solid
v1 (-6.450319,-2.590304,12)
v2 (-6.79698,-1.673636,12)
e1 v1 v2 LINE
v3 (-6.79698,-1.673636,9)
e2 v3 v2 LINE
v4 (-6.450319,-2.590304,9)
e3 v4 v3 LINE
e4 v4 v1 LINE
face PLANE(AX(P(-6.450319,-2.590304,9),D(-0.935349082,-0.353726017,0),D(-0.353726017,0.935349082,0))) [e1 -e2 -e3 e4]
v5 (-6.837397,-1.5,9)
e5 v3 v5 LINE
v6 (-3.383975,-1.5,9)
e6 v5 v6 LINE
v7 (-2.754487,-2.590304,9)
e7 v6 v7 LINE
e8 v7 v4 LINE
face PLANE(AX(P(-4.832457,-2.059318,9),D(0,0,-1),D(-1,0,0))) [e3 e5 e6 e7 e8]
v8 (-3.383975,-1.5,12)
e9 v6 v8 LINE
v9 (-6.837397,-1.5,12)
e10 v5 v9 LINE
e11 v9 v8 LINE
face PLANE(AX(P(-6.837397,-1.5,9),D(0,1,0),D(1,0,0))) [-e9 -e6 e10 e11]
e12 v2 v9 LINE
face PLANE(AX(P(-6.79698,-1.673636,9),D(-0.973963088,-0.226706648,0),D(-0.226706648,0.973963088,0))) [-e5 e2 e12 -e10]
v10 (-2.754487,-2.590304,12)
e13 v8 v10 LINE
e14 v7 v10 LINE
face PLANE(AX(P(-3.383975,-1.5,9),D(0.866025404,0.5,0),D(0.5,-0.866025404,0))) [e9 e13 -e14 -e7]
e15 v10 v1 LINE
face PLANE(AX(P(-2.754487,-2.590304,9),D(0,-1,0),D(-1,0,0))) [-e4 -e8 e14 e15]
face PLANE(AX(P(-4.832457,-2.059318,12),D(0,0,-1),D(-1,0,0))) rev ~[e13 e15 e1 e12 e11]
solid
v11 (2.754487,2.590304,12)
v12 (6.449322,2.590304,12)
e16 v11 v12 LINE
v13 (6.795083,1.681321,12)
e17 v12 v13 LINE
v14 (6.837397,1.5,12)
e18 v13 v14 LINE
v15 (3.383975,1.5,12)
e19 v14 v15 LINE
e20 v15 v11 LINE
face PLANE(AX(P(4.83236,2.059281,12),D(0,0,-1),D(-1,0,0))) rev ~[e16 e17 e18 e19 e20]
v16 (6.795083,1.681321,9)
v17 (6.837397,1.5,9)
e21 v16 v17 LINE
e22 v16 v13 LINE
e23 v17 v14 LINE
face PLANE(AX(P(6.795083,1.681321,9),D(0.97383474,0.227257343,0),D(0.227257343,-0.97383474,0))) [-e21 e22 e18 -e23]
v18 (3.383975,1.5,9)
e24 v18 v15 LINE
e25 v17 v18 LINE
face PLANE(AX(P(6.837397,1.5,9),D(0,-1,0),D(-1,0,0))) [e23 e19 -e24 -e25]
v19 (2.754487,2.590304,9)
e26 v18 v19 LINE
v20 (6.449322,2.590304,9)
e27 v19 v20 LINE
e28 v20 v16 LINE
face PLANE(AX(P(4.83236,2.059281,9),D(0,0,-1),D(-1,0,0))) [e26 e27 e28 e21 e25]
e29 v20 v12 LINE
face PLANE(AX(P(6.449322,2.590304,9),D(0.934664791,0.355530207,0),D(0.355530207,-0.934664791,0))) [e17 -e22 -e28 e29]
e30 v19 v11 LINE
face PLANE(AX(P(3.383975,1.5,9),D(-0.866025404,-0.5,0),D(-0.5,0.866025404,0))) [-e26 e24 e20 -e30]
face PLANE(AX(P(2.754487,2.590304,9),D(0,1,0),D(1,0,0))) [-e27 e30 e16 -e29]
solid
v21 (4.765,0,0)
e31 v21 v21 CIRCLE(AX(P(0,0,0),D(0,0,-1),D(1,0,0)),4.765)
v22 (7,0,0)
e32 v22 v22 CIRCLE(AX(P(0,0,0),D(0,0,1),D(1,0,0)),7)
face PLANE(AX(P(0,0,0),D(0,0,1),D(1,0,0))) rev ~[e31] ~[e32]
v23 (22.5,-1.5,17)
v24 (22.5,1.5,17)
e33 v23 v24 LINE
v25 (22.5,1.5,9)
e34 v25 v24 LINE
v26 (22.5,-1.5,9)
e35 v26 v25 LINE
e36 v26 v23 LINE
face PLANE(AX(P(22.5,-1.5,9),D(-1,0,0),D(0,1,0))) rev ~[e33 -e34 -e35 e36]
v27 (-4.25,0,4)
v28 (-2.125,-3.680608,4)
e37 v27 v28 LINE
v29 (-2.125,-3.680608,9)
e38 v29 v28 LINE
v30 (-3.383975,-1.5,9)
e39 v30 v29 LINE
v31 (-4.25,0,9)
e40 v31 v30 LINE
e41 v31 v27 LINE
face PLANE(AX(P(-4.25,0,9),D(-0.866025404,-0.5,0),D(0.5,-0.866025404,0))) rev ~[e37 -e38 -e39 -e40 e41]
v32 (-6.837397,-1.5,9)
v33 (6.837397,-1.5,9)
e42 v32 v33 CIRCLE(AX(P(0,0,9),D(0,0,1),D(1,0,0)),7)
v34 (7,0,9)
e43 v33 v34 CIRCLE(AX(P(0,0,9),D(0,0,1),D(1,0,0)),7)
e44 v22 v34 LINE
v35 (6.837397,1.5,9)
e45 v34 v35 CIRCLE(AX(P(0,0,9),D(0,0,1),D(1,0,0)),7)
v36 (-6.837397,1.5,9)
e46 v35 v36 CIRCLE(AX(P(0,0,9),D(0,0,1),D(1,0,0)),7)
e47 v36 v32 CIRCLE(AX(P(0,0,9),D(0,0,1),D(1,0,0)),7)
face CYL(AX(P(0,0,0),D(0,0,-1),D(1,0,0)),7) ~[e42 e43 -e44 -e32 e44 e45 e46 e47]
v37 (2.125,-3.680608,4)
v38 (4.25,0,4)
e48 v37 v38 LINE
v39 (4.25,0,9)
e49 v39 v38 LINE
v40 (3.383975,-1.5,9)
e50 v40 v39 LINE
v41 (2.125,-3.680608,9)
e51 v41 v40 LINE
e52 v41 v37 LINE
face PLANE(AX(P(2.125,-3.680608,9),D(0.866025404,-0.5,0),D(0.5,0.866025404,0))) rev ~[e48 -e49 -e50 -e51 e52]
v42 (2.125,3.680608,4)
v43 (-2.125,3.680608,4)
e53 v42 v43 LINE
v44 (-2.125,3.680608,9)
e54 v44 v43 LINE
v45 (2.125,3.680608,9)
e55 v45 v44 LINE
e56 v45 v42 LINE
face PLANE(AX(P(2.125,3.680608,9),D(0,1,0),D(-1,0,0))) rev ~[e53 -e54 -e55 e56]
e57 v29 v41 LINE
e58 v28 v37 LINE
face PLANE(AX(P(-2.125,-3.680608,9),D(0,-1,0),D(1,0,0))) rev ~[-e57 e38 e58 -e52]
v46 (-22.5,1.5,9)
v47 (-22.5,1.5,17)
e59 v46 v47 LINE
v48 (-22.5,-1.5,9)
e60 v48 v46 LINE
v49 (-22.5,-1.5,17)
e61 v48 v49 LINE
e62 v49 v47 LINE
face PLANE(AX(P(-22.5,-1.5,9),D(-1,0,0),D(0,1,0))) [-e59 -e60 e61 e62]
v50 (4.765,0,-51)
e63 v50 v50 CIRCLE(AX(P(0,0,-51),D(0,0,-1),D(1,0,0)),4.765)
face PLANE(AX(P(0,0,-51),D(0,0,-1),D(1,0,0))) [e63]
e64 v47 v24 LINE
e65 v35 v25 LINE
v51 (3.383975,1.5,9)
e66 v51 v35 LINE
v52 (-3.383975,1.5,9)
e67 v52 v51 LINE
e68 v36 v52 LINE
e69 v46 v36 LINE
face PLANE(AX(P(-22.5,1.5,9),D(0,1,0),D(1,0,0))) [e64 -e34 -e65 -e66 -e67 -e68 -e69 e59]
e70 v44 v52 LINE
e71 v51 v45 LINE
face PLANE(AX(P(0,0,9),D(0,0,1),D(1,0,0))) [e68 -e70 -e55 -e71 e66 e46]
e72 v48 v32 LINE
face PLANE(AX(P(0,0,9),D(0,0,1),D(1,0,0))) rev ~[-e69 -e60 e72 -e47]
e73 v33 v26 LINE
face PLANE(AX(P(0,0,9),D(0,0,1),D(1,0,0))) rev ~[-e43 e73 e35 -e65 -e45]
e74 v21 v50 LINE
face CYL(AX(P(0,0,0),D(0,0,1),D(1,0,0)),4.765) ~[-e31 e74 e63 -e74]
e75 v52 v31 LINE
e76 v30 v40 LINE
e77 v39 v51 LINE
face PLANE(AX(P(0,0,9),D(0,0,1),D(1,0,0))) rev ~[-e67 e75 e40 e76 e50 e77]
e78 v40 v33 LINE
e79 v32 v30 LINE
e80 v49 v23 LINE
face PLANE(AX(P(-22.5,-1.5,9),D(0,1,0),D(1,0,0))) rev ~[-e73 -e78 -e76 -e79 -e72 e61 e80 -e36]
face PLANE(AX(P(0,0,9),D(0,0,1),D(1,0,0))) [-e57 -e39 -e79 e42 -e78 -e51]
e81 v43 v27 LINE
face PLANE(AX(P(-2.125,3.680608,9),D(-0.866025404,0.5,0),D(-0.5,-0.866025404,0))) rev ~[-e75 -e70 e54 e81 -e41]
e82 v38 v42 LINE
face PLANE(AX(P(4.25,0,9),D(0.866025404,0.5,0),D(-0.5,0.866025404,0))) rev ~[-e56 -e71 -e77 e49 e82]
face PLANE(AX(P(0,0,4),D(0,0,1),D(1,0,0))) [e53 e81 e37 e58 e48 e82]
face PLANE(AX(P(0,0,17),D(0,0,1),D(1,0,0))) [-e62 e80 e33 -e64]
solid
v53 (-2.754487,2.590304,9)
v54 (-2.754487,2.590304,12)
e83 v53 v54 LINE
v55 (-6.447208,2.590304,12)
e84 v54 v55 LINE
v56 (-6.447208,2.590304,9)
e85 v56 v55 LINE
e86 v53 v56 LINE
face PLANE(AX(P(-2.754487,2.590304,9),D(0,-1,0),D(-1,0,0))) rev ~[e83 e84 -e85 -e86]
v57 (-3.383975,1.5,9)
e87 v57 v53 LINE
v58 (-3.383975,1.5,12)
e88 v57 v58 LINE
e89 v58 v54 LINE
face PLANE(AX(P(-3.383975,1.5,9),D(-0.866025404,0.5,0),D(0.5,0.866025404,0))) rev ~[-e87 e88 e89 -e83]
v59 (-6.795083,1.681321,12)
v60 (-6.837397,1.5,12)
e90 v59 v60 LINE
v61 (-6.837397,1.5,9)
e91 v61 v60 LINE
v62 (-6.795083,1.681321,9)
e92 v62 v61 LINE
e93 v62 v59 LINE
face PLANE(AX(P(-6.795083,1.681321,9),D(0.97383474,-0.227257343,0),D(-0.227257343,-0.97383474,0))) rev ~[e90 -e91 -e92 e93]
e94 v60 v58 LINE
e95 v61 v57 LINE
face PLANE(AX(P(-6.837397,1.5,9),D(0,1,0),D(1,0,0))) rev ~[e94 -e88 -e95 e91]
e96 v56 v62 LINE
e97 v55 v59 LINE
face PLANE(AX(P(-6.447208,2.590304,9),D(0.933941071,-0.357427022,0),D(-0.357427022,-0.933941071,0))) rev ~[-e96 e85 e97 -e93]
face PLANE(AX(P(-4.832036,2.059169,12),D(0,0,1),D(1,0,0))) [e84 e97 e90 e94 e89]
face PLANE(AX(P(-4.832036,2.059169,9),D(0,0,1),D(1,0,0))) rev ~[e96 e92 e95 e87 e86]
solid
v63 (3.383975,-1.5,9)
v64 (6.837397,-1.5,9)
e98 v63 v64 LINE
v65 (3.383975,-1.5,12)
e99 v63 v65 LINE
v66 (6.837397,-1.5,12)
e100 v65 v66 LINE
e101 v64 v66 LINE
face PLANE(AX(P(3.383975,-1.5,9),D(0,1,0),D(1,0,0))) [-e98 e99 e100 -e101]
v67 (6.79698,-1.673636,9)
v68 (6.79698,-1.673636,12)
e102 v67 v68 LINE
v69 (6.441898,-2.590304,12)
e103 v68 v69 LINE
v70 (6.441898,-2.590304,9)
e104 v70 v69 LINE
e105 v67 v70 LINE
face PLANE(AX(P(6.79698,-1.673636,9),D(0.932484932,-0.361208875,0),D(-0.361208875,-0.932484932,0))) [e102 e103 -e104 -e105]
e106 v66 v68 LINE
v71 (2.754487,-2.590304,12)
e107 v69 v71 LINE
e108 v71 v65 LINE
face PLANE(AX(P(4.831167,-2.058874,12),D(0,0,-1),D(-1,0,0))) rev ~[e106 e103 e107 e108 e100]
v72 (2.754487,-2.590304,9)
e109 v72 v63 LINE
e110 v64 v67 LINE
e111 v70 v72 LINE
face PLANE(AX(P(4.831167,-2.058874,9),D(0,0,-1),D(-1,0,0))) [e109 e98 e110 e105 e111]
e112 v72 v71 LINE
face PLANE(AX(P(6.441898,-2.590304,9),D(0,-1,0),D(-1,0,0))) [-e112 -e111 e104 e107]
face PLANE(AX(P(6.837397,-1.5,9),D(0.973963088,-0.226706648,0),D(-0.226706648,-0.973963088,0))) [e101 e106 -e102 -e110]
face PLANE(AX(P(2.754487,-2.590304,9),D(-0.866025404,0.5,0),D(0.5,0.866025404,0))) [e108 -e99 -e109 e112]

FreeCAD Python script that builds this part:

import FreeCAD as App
import Part
import Sketcher
from FreeCAD import Vector
Q = App.Units.Quantity

doc = App.newDocument("Part")
body = doc.addObject("PartDesign::Body", "Body")

# Sketch on XY plane
sketch1 = doc.addObject("Sketcher::SketchObject", "Sketch")
body.addObject(sketch1)
sketch1.AttachmentSupport = (doc.XY_Plane, [""])
sketch1.MapMode = "FlatFace"
sketch1.addGeometry(Part.Circle(Vector(0, 0, 0), Vector(0, 0, 1), 7), False)
sketch1.addConstraint([
    Sketcher.Constraint("Coincident", 0, 3, -1, 1),
    Sketcher.Constraint("Diameter", 0, 14.0),
])
pad1 = doc.addObject("PartDesign::Pad", "Pad")
body.addObject(pad1)
pad1.Profile = sketch1
pad1.Length = 9

# Sketch on XY plane
sketch2 = doc.addObject("Sketcher::SketchObject", "Sketch001")
body.addObject(sketch2)
sketch2.AttachmentSupport = (doc.XY_Plane, [""])
sketch2.MapMode = "FlatFace"
sketch2.addGeometry(Part.Circle(Vector(0, 0, 0), Vector(0, 0, 1), 4.8), False)
sketch2.addConstraint([
    Sketcher.Constraint("Coincident", 0, 3, -1, 1),
    Sketcher.Constraint("Diameter", 0, 9.53),
])
pad2 = doc.addObject("PartDesign::Pad", "Pad001")
body.addObject(pad2)
pad2.Profile = sketch2
pad2.Length = 51
pad2.Reversed = True

# Sketch on XY plane
sketch3 = doc.addObject("Sketcher::SketchObject", "Sketch002")
body.addObject(sketch3)
sketch3.AttachmentSupport = (doc.XY_Plane, [""])
sketch3.MapMode = "FlatFace"
sketch3.AttachmentOffset = App.Placement(Vector(0, 0, 9), App.Rotation())
sketch3.addGeometry([
    Part.LineSegment(Vector(4.2, 0, 0), Vector(2.1, 3.7, 0)),  # 0
    Part.LineSegment(Vector(2.1, 3.7, 0), Vector(-2.1, 3.7, 0)),  # 1
    Part.LineSegment(Vector(-2.1, 3.7, 0), Vector(-4.2, 0, 0)),  # 2
    Part.LineSegment(Vector(-4.2, 0, 0), Vector(-2.1, -3.7, 0)),  # 3
    Part.LineSegment(Vector(-2.1, -3.7, 0), Vector(2.1, -3.7, 0)),  # 4
    Part.LineSegment(Vector(2.1, -3.7, 0), Vector(4.2, 0, 0)),  # 5
], False)
sketch3.addConstraint([
    Sketcher.Constraint("Coincident", 0, 2, 1, 1),
    Sketcher.Constraint("Coincident", 1, 2, 2, 1),
    Sketcher.Constraint("Coincident", 2, 2, 3, 1),
    Sketcher.Constraint("Coincident", 3, 2, 4, 1),
    Sketcher.Constraint("Coincident", 4, 2, 5, 1),
    Sketcher.Constraint("Coincident", 5, 2, 0, 1),
    Sketcher.Constraint("Horizontal", 1),
    Sketcher.Constraint("Horizontal", 4),
    Sketcher.Constraint("Symmetric", 0, 2, 3, 2, -1, 1),
    Sketcher.Constraint("Symmetric", 2, 2, 5, 2, -1, 1),
    Sketcher.Constraint("PointOnObject", 2, 2, -1),
    Sketcher.Constraint("Parallel", 2, 5),
    Sketcher.Constraint("Vertical", 1, 2, 3, 2),
    Sketcher.Constraint("Angle", 0, Q("120 deg")),
    Sketcher.Constraint("DistanceX", 1, 2, 1, 1, 4.25),
    Sketcher.Constraint("DistanceX", 2, 2, 5, 2, 8.5),
])
pocket1 = doc.addObject("PartDesign::Pocket", "Pocket")
body.addObject(pocket1)
pocket1.Profile = sketch3
pocket1.Length = 5

# Sketch on XY plane
sketch4 = doc.addObject("Sketcher::SketchObject", "Sketch003")
body.addObject(sketch4)
sketch4.AttachmentSupport = (doc.XY_Plane, [""])
sketch4.MapMode = "FlatFace"
sketch4.AttachmentOffset = App.Placement(Vector(0, 0, 9), App.Rotation())
sketch4.addGeometry([
    Part.LineSegment(Vector(-22.5, 1.5, 0), Vector(-22.5, -1.5, 0)),
    Part.LineSegment(Vector(-22.5, -1.5, 0), Vector(22.5, -1.5, 0)),
    Part.LineSegment(Vector(22.5, -1.5, 0), Vector(22.5, 1.5, 0)),
    Part.LineSegment(Vector(22.5, 1.5, 0), Vector(-22.5, 1.5, 0)),
], False)
sketch4.addConstraint([
    Sketcher.Constraint("Coincident", 0, 2, 1, 1),
    Sketcher.Constraint("Coincident", 1, 2, 2, 1),
    Sketcher.Constraint("Coincident", 2, 2, 3, 1),
    Sketcher.Constraint("Coincident", 3, 2, 0, 1),
    Sketcher.Constraint("Vertical", 0),
    Sketcher.Constraint("Horizontal", 1),
    Sketcher.Constraint("Vertical", 2),
    Sketcher.Constraint("Horizontal", 3),
    Sketcher.Constraint("Symmetric", 0, 2, 2, 2, -1, 1),
    Sketcher.Constraint("DistanceX", 1, 1, 1, 2, 45.0),
    Sketcher.Constraint("DistanceY", 0, 2, 0, 1, 3.0),
])
pad3 = doc.addObject("PartDesign::Pad", "Pad002")
body.addObject(pad3)
pad3.Profile = sketch4
pad3.Length = 8
body2 = doc.addObject("PartDesign::Body", "Body001")

# Sketch on XY plane
sketch5 = doc.addObject("Sketcher::SketchObject", "Sketch004")
body2.addObject(sketch5)
sketch5.AttachmentSupport = (doc.getObject("XY_Plane001"), [""])
sketch5.MapMode = "FlatFace"
sketch5.AttachmentOffset = App.Placement(Vector(0, 0, 9), App.Rotation())
sketch5.addGeometry([
    Part.LineSegment(Vector(-3.38, -1.5, 0), Vector(-6.84, -1.5, 0)),  # 0
    Part.LineSegment(Vector(-6.84, -1.5, 0), Vector(-6.8, -1.67, 0)),  # 1
    Part.LineSegment(Vector(-6.8, -1.67, 0), Vector(-6.45, -2.59, 0)),  # 2
    Part.LineSegment(Vector(-6.45, -2.59, 0), Vector(-2.75, -2.59, 0)),  # 3
    Part.LineSegment(Vector(-2.75, -2.59, 0), Vector(-3.38, -1.5, 0)),  # 4
], False)
sketch5.addConstraint([
    Sketcher.Constraint("Coincident", 0, 2, 1, 1),
    Sketcher.Constraint("Coincident", 1, 2, 2, 1),
    Sketcher.Constraint("Coincident", 2, 2, 3, 1),
    Sketcher.Constraint("Coincident", 3, 2, 4, 1),
    Sketcher.Constraint("Coincident", 4, 2, 0, 1),
    Sketcher.Constraint("Horizontal", 0),
    Sketcher.Constraint("Horizontal", 3),
    Sketcher.Constraint("Angle", 4, Q("120 deg")),
    Sketcher.Constraint("DistanceY", 0, 2, -1, 1, 1.5),
    Sketcher.Constraint("DistanceX", 3, 1, 3, 2, 3.695832),
    Sketcher.Constraint("Distance", 2, 0.980028),
    Sketcher.Constraint("DistanceX", 0, 2, 0, 1, 3.453423),
    Sketcher.Constraint("DistanceX", 1, 2, -1, 1, 6.79698),
    Sketcher.Constraint("DistanceX", 2, 2, -1, 1, 6.450319),
    Sketcher.Constraint("DistanceX", 0, 2, 2, 2, 0.387078),
])
pad4 = doc.addObject("PartDesign::Pad", "Pad003")
body2.addObject(pad4)
pad4.Profile = sketch5
pad4.Length = 3
body3 = doc.addObject("PartDesign::Body", "Body002")

# Sketch on XY plane
sketch6 = doc.addObject("Sketcher::SketchObject", "Sketch005")
body3.addObject(sketch6)
sketch6.AttachmentSupport = (doc.getObject("XY_Plane002"), [""])
sketch6.MapMode = "FlatFace"
sketch6.AttachmentOffset = App.Placement(Vector(0, 0, 9), App.Rotation())
sketch6.addGeometry([
    Part.LineSegment(Vector(3.38, -1.5, 0), Vector(2.75, -2.59, 0)),  # 0
    Part.LineSegment(Vector(2.75, -2.59, 0), Vector(6.44, -2.59, 0)),  # 1
    Part.LineSegment(Vector(6.44, -2.59, 0), Vector(6.8, -1.67, 0)),  # 2
    Part.LineSegment(Vector(6.8, -1.67, 0), Vector(6.84, -1.5, 0)),  # 3
    Part.LineSegment(Vector(6.84, -1.5, 0), Vector(3.38, -1.5, 0)),  # 4
], False)
sketch6.addConstraint([
    Sketcher.Constraint("Coincident", 0, 2, 1, 1),
    Sketcher.Constraint("Coincident", 1, 2, 2, 1),
    Sketcher.Constraint("Coincident", 2, 2, 3, 1),
    Sketcher.Constraint("Coincident", 3, 2, 4, 1),
    Sketcher.Constraint("Coincident", 4, 2, 0, 1),
    Sketcher.Constraint("Horizontal", 1),
    Sketcher.Constraint("Horizontal", 4),
    Sketcher.Constraint("Angle", 0, Q("-120 deg")),
    Sketcher.Constraint("DistanceY", 3, 2, -1, 1, 1.5),
    Sketcher.Constraint("DistanceX", 1, 1, 1, 2, 3.687411),
    Sketcher.Constraint("DistanceX", -1, 1, 1, 2, 6.441898),
    Sketcher.Constraint("DistanceX", 1, 2, 3, 2, 0.395499),
    Sketcher.Constraint("Distance", 2, 0.983038),
    Sketcher.Constraint("DistanceX", 4, 2, 4, 1, 3.453423),
    Sketcher.Constraint("DistanceX", -1, 1, 2, 2, 6.79698),
])
pad5 = doc.addObject("PartDesign::Pad", "Pad004")
body3.addObject(pad5)
pad5.Profile = sketch6
pad5.Length = 3
body4 = doc.addObject("PartDesign::Body", "Body003")

# Sketch on XY plane
sketch7 = doc.addObject("Sketcher::SketchObject", "Sketch006")
body4.addObject(sketch7)
sketch7.AttachmentSupport = (doc.getObject("XY_Plane003"), [""])
sketch7.MapMode = "FlatFace"
sketch7.AttachmentOffset = App.Placement(Vector(0, 0, 9), App.Rotation())
sketch7.addGeometry([
    Part.LineSegment(Vector(3.38, 1.5, 0), Vector(6.84, 1.5, 0)),  # 0
    Part.LineSegment(Vector(6.84, 1.5, 0), Vector(6.8, 1.68, 0)),  # 1
    Part.LineSegment(Vector(6.8, 1.68, 0), Vector(6.45, 2.59, 0)),  # 2
    Part.LineSegment(Vector(6.45, 2.59, 0), Vector(2.75, 2.59, 0)),  # 3
    Part.LineSegment(Vector(2.75, 2.59, 0), Vector(3.38, 1.5, 0)),  # 4
], False)
sketch7.addConstraint([
    Sketcher.Constraint("Coincident", 0, 2, 1, 1),
    Sketcher.Constraint("Coincident", 1, 2, 2, 1),
    Sketcher.Constraint("Coincident", 2, 2, 3, 1),
    Sketcher.Constraint("Coincident", 3, 2, 4, 1),
    Sketcher.Constraint("Coincident", 4, 2, 0, 1),
    Sketcher.Constraint("Horizontal", 0),
    Sketcher.Constraint("Horizontal", 3),
    Sketcher.Constraint("Angle", 4, Q("-60 deg")),
    Sketcher.Constraint("DistanceY", -1, 1, 0, 2, 1.5),
    Sketcher.Constraint("DistanceX", 0, 1, 0, 2, 3.453423),
    Sketcher.Constraint("DistanceX", 3, 2, 3, 1, 3.694835),
    Sketcher.Constraint("DistanceY", -1, 1, 1, 2, 1.681321),
    Sketcher.Constraint("DistanceX", 2, 2, 1, 2, 0.345761),
    Sketcher.Constraint("DistanceX", 3, 2, 0, 2, 4.08291),
    Sketcher.Constraint("DistanceX", -1, 1, 0, 2, 6.837397),
])
pad6 = doc.addObject("PartDesign::Pad", "Pad005")
body4.addObject(pad6)
pad6.Profile = sketch7
pad6.Length = 3
body5 = doc.addObject("PartDesign::Body", "Body004")

# Sketch on XY plane
sketch8 = doc.addObject("Sketcher::SketchObject", "Sketch007")
body5.addObject(sketch8)
sketch8.AttachmentSupport = (doc.getObject("XY_Plane004"), [""])
sketch8.MapMode = "FlatFace"
sketch8.AttachmentOffset = App.Placement(Vector(0, 0, 9), App.Rotation())
sketch8.addGeometry([
    Part.LineSegment(Vector(-6.84, 1.5, 0), Vector(-3.38, 1.5, 0)),  # 0
    Part.LineSegment(Vector(-3.38, 1.5, 0), Vector(-2.75, 2.59, 0)),  # 1
    Part.LineSegment(Vector(-2.75, 2.59, 0), Vector(-6.45, 2.59, 0)),  # 2
    Part.LineSegment(Vector(-6.45, 2.59, 0), Vector(-6.8, 1.68, 0)),  # 3
    Part.LineSegment(Vector(-6.8, 1.68, 0), Vector(-6.84, 1.5, 0)),  # 4
], False)
sketch8.addConstraint([
    Sketcher.Constraint("Coincident", 0, 2, 1, 1),
    Sketcher.Constraint("Coincident", 1, 2, 2, 1),
    Sketcher.Constraint("Coincident", 2, 2, 3, 1),
    Sketcher.Constraint("Coincident", 3, 2, 4, 1),
    Sketcher.Constraint("Coincident", 4, 2, 0, 1),
    Sketcher.Constraint("Horizontal", 0),
    Sketcher.Constraint("Horizontal", 2),
    Sketcher.Constraint("Angle", 1, Q("60 deg")),
    Sketcher.Constraint("DistanceY", -1, 1, 0, 2, 1.5),
    Sketcher.Constraint("DistanceX", 2, 2, 2, 1, 3.692721),
    Sketcher.Constraint("DistanceX", 0, 1, 0, 2, 3.453423),
    Sketcher.Constraint("DistanceX", 2, 2, -1, 1, 6.447208),
    Sketcher.Constraint("DistanceY", -1, 1, 3, 2, 1.681321),
    Sketcher.Constraint("DistanceX", 3, 2, 0, 2, 3.411109),
    Sketcher.Constraint("DistanceX", 4, 2, 2, 2, 0.390189),
])
pad7 = doc.addObject("PartDesign::Pad", "Pad006")
body5.addObject(pad7)
pad7.Profile = sketch8
pad7.Length = 3

doc.recompute()
